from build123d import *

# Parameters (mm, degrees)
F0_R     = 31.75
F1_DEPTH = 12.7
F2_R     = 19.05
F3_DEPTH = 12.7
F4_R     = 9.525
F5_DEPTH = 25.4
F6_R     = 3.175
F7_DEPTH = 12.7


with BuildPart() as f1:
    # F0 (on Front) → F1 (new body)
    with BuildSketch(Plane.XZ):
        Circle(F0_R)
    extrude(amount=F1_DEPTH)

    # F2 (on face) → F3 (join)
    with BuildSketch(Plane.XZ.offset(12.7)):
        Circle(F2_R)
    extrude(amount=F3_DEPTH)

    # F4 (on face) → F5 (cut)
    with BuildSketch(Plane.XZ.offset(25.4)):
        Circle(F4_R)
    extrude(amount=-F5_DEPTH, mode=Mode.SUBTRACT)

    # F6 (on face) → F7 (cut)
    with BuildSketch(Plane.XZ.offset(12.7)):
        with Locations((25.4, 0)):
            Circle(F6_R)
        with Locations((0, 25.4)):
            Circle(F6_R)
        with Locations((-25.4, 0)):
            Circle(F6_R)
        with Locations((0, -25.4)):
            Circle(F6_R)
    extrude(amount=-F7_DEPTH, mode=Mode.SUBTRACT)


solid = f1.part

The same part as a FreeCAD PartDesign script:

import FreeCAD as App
import Part
import Sketcher

V = App.Vector
Q = App.Units.Quantity

doc = App.newDocument("Part")
body = doc.addObject("PartDesign::Body", "Body")

# Sketch on XZ plane
sketch1 = body.newObject("Sketcher::SketchObject", "Sketch")
sketch1.AttachmentSupport = (doc.getObject("XZ_Plane"), [""])
sketch1.MapMode = "FlatFace"
sketch1.addGeometry(Part.Circle(V(0, 0, 0), V(0, 0, 1), 32), False)
sketch1.addConstraint([
    Sketcher.Constraint("Coincident", 0, 3, -1, 1),
    Sketcher.Constraint("Diameter", 0, Q("2.5 in")),
])
pad1 = body.newObject("PartDesign::Pad", "Pad")
pad1.Profile = sketch1
pad1.Length = Q("0.5 in")

# Sketch on XZ plane
sketch2 = body.newObject("Sketcher::SketchObject", "Sketch001")
sketch2.AttachmentSupport = (doc.getObject("XZ_Plane"), [""])
sketch2.MapMode = "FlatFace"
sketch2.AttachmentOffset = App.Placement(V(0, 0, 0.5 * 25.4), App.Rotation())
sketch2.addGeometry(Part.Circle(V(0, 0, 0), V(0, 0, 1), 19), False)
sketch2.addConstraint([
    Sketcher.Constraint("Coincident", 0, 3, -1, 1),
    Sketcher.Constraint("Diameter", 0, Q("1.5 in")),
])
pad2 = body.newObject("PartDesign::Pad", "Pad001")
pad2.Profile = sketch2
pad2.Length = Q("0.5 in")

# Sketch on XZ plane
sketch3 = body.newObject("Sketcher::SketchObject", "Sketch002")
sketch3.AttachmentSupport = (doc.getObject("XZ_Plane"), [""])
sketch3.MapMode = "FlatFace"
sketch3.AttachmentOffset = App.Placement(V(0, 0, 1 * 25.4), App.Rotation())
sketch3.addGeometry(Part.Circle(V(0, 0, 0), V(0, 0, 1), 10), False)
sketch3.addConstraint([
    Sketcher.Constraint("Coincident", 0, 3, -1, 1),
    Sketcher.Constraint("Diameter", 0, Q("0.75 in")),
])
pocket1 = body.newObject("PartDesign::Pocket", "Pocket")
pocket1.Profile = sketch3
pocket1.Length = Q("1 in")

# Sketch on XZ plane
sketch4 = body.newObject("Sketcher::SketchObject", "Sketch003")
sketch4.AttachmentSupport = (doc.getObject("XZ_Plane"), [""])
sketch4.MapMode = "FlatFace"
sketch4.AttachmentOffset = App.Placement(V(0, 0, 0.5 * 25.4), App.Rotation())
sketch4.addGeometry([
    Part.Circle(V(25.4, 0, 0), V(0, 0, 1), 3.2),
    Part.Circle(V(0, 25.4, 0), V(0, 0, 1), 3.2),
    Part.Circle(V(-25.4, 0, 0), V(0, 0, 1), 3.2),
    Part.Circle(V(0, -25.4, 0), V(0, 0, 1), 3.2),
], False)
sketch4.addConstraint([
    Sketcher.Constraint("Equal", 0, 1),
    Sketcher.Constraint("Equal", 1, 2),
    Sketcher.Constraint("Equal", 2, 3),
    Sketcher.Constraint("Symmetric", 0, 3, 2, 3, -1, 1),
    Sketcher.Constraint("Symmetric", 1, 3, 3, 3, -1, 1),
    Sketcher.Constraint("PointOnObject", 0, 3, -1),
    Sketcher.Constraint("PointOnObject", 1, 3, -2),
    Sketcher.Constraint("Diameter", 0, Q("0.25 in")),
    Sketcher.Constraint("DistanceX", -1, 1, 0, 3, Q("1 in")),
    Sketcher.Constraint("DistanceY", -1, 1, 1, 3, Q("1 in")),
])
pocket2 = body.newObject("PartDesign::Pocket", "Pocket001")
pocket2.Profile = sketch4
pocket2.Length = Q("0.5 in")

doc.recompute()
